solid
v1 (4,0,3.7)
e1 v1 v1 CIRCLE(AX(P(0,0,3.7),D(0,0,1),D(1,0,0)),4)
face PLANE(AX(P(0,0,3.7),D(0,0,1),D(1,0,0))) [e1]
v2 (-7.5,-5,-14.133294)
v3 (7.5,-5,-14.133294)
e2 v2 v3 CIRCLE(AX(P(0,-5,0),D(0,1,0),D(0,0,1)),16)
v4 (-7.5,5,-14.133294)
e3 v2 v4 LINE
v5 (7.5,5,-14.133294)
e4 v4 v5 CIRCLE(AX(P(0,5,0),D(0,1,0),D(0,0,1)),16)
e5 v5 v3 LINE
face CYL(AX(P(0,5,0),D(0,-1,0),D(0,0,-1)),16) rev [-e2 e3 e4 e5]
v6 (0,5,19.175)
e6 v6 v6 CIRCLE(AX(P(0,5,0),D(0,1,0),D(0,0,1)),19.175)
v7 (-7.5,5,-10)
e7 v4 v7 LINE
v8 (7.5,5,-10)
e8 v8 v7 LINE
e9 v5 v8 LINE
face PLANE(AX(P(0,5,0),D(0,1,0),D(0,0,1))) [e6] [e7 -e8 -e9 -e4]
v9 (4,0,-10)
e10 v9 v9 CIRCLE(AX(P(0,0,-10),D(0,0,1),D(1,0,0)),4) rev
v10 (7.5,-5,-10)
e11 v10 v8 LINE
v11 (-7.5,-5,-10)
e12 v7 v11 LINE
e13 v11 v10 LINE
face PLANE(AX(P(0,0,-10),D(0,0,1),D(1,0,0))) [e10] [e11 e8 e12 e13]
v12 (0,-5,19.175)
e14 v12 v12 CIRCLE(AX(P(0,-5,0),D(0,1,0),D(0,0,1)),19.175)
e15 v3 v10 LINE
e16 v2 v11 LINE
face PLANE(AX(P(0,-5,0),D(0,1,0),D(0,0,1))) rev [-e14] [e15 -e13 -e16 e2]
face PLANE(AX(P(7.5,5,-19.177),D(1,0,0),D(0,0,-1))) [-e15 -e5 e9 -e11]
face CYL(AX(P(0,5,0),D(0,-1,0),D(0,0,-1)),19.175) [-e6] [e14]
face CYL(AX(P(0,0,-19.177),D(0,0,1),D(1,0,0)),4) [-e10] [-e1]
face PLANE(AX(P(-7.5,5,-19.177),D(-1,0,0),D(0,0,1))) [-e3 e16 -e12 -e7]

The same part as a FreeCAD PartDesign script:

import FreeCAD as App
import Part
import Sketcher

V = App.Vector

doc = App.newDocument("Part")
body = doc.addObject("PartDesign::Body", "Body")

# Sketch on XZ plane
sketch1 = doc.addObject("Sketcher::SketchObject", "Sketch")
body.addObject(sketch1)
sketch1.AttachmentSupport = (doc.XZ_Plane, [""])
sketch1.MapMode = "FlatFace"
sketch1.addGeometry(Part.Circle(V(0, 0, 0), V(0, 0, 1), 19), False)
sketch1.addGeometry(Part.Circle(V(0, 0, 0), V(0, 0, 1), 16), False)
sketch1.addConstraint(Sketcher.Constraint("Coincident", 0, 3, -1, 1))
sketch1.addConstraint(Sketcher.Constraint("Coincident", 1, 3, -1, 1))
sketch1.addConstraint(Sketcher.Constraint("Diameter", 1, 32.0))
sketch1.addConstraint(Sketcher.Constraint("Diameter", 0, 38.35))
pad1 = doc.addObject("PartDesign::Pad", "Pad")
body.addObject(pad1)
pad1.Profile = sketch1
pad1.Length = 10
pad1.Midplane = True

# Sketch on XY plane
sketch2 = doc.addObject("Sketcher::SketchObject", "Sketch001")
body.addObject(sketch2)
sketch2.AttachmentSupport = (doc.XY_Plane, [""])
sketch2.MapMode = "FlatFace"
sketch2.AttachmentOffset = App.Placement(V(0, 0, 3.7), App.Rotation())
sketch2.addGeometry(Part.Circle(V(0, 0, 0), V(0, 0, 1), 4), False)
sketch2.addConstraint(Sketcher.Constraint("Coincident", 0, 3, -1, 1))
sketch2.addConstraint(Sketcher.Constraint("Diameter", 0, 8.0))
pad2 = doc.addObject("PartDesign::Pad", "Pad001")
body.addObject(pad2)
pad2.Profile = sketch2
pad2.Type = "UpToFirst"
pad2.Reversed = True

# Sketch on XY plane
sketch3 = doc.addObject("Sketcher::SketchObject", "Sketch002")
body.addObject(sketch3)
sketch3.AttachmentSupport = (doc.XY_Plane, [""])
sketch3.MapMode = "FlatFace"
sketch3.AttachmentOffset = App.Placement(V(0, 0, -10), App.Rotation())
sketch3.addGeometry(Part.LineSegment(V(-8, 5, 0), V(-8, -5, 0)), False)
sketch3.addGeometry(Part.LineSegment(V(-8, -5, 0), V(8, -5, 0)), False)
sketch3.addGeometry(Part.LineSegment(V(8, -5, 0), V(8, 5, 0)), False)
sketch3.addGeometry(Part.LineSegment(V(8, 5, 0), V(-8, 5, 0)), False)
sketch3.addConstraint(Sketcher.Constraint("Coincident", 0, 2, 1, 1))
sketch3.addConstraint(Sketcher.Constraint("Coincident", 1, 2, 2, 1))
sketch3.addConstraint(Sketcher.Constraint("Coincident", 2, 2, 3, 1))
sketch3.addConstraint(Sketcher.Constraint("Coincident", 3, 2, 0, 1))
sketch3.addConstraint(Sketcher.Constraint("Vertical", 0))
sketch3.addConstraint(Sketcher.Constraint("Horizontal", 1))
sketch3.addConstraint(Sketcher.Constraint("Vertical", 2))
sketch3.addConstraint(Sketcher.Constraint("Horizontal", 3))
sketch3.addConstraint(Sketcher.Constraint("Symmetric", 0, 2, 2, 2, -1, 1))
sketch3.addConstraint(Sketcher.Constraint("DistanceX", 1, 1, 1, 2, 15.0))
sketch3.addConstraint(Sketcher.Constraint("DistanceY", 0, 2, 0, 1, 10.0))
pad3 = doc.addObject("PartDesign::Pad", "Pad002")
body.addObject(pad3)
pad3.Profile = sketch3
pad3.Type = "UpToFirst"
pad3.Reversed = True

doc.recompute()
